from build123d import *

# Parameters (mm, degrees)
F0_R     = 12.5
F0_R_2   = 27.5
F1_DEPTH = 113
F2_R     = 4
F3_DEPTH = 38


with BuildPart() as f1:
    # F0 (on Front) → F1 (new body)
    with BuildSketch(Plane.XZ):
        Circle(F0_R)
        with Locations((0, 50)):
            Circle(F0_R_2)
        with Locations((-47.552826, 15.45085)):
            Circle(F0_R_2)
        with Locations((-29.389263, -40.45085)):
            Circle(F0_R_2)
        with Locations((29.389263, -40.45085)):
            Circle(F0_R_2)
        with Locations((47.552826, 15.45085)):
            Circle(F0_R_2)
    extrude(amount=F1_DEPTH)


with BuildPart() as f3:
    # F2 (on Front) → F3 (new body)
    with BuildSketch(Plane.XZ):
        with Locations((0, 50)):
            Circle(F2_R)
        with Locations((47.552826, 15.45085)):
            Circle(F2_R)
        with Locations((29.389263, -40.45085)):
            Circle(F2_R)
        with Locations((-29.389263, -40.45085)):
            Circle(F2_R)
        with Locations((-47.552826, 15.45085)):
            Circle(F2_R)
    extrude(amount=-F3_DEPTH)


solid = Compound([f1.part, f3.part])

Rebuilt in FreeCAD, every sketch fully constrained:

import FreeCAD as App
import Part
import Sketcher
Q = App.Units.Quantity

doc = App.newDocument("Part")
body = doc.addObject("PartDesign::Body", "Body")
body.AllowCompound = True

# Sketch on XZ plane
sketch1 = doc.addObject("Sketcher::SketchObject", "Sketch")
body.addObject(sketch1)
sketch1.AttachmentSupport = (doc.XZ_Plane, [""])
sketch1.MapMode = "FlatFace"
sketch1.addGeometry([
    Part.Circle(App.Vector(0, 0, 0), App.Vector(0, 0, 1), 12.5),  # 0
    Part.Circle(App.Vector(0, 50, 0), App.Vector(0, 0, 1), 27.5),  # 1
    Part.Circle(App.Vector(-47.552826, 15.45085, 0), App.Vector(0, 0, 1), 27.5),  # 2
    Part.Circle(App.Vector(-29.389263, -40.45085, 0), App.Vector(0, 0, 1), 27.5),  # 3
    Part.Circle(App.Vector(29.389263, -40.45085, 0), App.Vector(0, 0, 1), 27.5),  # 4
    Part.Circle(App.Vector(47.552826, 15.45085, 0), App.Vector(0, 0, 1), 27.5),  # 5
], False)
sketch1.addConstraint([
    Sketcher.Constraint("Coincident", 0, 3, -1, 1),
    Sketcher.Constraint("Equal", 1, 2),
    Sketcher.Constraint("Equal", 2, 3),
    Sketcher.Constraint("Equal", 3, 4),
    Sketcher.Constraint("Equal", 4, 5),
    Sketcher.Constraint("Symmetric", 3, 3, 4, 3, -2),
    Sketcher.Constraint("Symmetric", 2, 3, 5, 3, -2),
    Sketcher.Constraint("PointOnObject", 1, 3, -2),
    Sketcher.Constraint("Diameter", 0, Q("25 mm")),
    Sketcher.Constraint("Diameter", 1, Q("55 mm")),
    Sketcher.Constraint("DistanceY", -1, 1, 1, 3, Q("50 mm")),
    Sketcher.Constraint("DistanceY", 3, 3, 2, 3, Q("55.9017 mm")),
    Sketcher.Constraint("DistanceY", -1, 1, 2, 3, Q("15.45085 mm")),
    Sketcher.Constraint("DistanceX", 2, 3, 4, 3, Q("76.942089 mm")),
    Sketcher.Constraint("DistanceX", 2, 3, -1, 1, Q("47.552826 mm")),
])
pad1 = doc.addObject("PartDesign::Pad", "Pad")
body.addObject(pad1)
pad1.Profile = sketch1
pad1.Length = 113
body2 = doc.addObject("PartDesign::Body", "Body001")
body2.AllowCompound = True

# Sketch on XZ plane
sketch2 = doc.addObject("Sketcher::SketchObject", "Sketch001")
body2.addObject(sketch2)
sketch2.AttachmentSupport = (doc.getObject("XZ_Plane001"), [""])
sketch2.MapMode = "FlatFace"
sketch2.addGeometry([
    Part.Circle(App.Vector(0, 50, 0), App.Vector(0, 0, 1), 4),  # 0
    Part.Circle(App.Vector(47.552826, 15.45085, 0), App.Vector(0, 0, 1), 4),  # 1
    Part.Circle(App.Vector(29.389263, -40.45085, 0), App.Vector(0, 0, 1), 4),  # 2
    Part.Circle(App.Vector(-29.389263, -40.45085, 0), App.Vector(0, 0, 1), 4),  # 3
    Part.Circle(App.Vector(-47.552826, 15.45085, 0), App.Vector(0, 0, 1), 4),  # 4
], False)
sketch2.addConstraint([
    Sketcher.Constraint("Equal", 0, 1),
    Sketcher.Constraint("Equal", 1, 2),
    Sketcher.Constraint("Equal", 2, 3),
    Sketcher.Constraint("Equal", 3, 4),
    Sketcher.Constraint("Symmetric", 2, 3, 3, 3, -2),
    Sketcher.Constraint("Symmetric", 1, 3, 4, 3, -2),
    Sketcher.Constraint("PointOnObject", 0, 3, -2),
    Sketcher.Constraint("Diameter", 0, Q("8 mm")),
    Sketcher.Constraint("DistanceY", -1, 1, 0, 3, Q("50 mm")),
    Sketcher.Constraint("DistanceY", 2, 3, 1, 3, Q("55.9017 mm")),
    Sketcher.Constraint("DistanceY", -1, 1, 1, 3, Q("15.45085 mm")),
    Sketcher.Constraint("DistanceX", 3, 3, 1, 3, Q("76.942089 mm")),
    Sketcher.Constraint("DistanceX", -1, 1, 1, 3, Q("47.552826 mm")),
])
pad2 = doc.addObject("PartDesign::Pad", "Pad001")
body2.addObject(pad2)
pad2.Profile = sketch2
pad2.Length = 38
pad2.Reversed = True

doc.recompute()
